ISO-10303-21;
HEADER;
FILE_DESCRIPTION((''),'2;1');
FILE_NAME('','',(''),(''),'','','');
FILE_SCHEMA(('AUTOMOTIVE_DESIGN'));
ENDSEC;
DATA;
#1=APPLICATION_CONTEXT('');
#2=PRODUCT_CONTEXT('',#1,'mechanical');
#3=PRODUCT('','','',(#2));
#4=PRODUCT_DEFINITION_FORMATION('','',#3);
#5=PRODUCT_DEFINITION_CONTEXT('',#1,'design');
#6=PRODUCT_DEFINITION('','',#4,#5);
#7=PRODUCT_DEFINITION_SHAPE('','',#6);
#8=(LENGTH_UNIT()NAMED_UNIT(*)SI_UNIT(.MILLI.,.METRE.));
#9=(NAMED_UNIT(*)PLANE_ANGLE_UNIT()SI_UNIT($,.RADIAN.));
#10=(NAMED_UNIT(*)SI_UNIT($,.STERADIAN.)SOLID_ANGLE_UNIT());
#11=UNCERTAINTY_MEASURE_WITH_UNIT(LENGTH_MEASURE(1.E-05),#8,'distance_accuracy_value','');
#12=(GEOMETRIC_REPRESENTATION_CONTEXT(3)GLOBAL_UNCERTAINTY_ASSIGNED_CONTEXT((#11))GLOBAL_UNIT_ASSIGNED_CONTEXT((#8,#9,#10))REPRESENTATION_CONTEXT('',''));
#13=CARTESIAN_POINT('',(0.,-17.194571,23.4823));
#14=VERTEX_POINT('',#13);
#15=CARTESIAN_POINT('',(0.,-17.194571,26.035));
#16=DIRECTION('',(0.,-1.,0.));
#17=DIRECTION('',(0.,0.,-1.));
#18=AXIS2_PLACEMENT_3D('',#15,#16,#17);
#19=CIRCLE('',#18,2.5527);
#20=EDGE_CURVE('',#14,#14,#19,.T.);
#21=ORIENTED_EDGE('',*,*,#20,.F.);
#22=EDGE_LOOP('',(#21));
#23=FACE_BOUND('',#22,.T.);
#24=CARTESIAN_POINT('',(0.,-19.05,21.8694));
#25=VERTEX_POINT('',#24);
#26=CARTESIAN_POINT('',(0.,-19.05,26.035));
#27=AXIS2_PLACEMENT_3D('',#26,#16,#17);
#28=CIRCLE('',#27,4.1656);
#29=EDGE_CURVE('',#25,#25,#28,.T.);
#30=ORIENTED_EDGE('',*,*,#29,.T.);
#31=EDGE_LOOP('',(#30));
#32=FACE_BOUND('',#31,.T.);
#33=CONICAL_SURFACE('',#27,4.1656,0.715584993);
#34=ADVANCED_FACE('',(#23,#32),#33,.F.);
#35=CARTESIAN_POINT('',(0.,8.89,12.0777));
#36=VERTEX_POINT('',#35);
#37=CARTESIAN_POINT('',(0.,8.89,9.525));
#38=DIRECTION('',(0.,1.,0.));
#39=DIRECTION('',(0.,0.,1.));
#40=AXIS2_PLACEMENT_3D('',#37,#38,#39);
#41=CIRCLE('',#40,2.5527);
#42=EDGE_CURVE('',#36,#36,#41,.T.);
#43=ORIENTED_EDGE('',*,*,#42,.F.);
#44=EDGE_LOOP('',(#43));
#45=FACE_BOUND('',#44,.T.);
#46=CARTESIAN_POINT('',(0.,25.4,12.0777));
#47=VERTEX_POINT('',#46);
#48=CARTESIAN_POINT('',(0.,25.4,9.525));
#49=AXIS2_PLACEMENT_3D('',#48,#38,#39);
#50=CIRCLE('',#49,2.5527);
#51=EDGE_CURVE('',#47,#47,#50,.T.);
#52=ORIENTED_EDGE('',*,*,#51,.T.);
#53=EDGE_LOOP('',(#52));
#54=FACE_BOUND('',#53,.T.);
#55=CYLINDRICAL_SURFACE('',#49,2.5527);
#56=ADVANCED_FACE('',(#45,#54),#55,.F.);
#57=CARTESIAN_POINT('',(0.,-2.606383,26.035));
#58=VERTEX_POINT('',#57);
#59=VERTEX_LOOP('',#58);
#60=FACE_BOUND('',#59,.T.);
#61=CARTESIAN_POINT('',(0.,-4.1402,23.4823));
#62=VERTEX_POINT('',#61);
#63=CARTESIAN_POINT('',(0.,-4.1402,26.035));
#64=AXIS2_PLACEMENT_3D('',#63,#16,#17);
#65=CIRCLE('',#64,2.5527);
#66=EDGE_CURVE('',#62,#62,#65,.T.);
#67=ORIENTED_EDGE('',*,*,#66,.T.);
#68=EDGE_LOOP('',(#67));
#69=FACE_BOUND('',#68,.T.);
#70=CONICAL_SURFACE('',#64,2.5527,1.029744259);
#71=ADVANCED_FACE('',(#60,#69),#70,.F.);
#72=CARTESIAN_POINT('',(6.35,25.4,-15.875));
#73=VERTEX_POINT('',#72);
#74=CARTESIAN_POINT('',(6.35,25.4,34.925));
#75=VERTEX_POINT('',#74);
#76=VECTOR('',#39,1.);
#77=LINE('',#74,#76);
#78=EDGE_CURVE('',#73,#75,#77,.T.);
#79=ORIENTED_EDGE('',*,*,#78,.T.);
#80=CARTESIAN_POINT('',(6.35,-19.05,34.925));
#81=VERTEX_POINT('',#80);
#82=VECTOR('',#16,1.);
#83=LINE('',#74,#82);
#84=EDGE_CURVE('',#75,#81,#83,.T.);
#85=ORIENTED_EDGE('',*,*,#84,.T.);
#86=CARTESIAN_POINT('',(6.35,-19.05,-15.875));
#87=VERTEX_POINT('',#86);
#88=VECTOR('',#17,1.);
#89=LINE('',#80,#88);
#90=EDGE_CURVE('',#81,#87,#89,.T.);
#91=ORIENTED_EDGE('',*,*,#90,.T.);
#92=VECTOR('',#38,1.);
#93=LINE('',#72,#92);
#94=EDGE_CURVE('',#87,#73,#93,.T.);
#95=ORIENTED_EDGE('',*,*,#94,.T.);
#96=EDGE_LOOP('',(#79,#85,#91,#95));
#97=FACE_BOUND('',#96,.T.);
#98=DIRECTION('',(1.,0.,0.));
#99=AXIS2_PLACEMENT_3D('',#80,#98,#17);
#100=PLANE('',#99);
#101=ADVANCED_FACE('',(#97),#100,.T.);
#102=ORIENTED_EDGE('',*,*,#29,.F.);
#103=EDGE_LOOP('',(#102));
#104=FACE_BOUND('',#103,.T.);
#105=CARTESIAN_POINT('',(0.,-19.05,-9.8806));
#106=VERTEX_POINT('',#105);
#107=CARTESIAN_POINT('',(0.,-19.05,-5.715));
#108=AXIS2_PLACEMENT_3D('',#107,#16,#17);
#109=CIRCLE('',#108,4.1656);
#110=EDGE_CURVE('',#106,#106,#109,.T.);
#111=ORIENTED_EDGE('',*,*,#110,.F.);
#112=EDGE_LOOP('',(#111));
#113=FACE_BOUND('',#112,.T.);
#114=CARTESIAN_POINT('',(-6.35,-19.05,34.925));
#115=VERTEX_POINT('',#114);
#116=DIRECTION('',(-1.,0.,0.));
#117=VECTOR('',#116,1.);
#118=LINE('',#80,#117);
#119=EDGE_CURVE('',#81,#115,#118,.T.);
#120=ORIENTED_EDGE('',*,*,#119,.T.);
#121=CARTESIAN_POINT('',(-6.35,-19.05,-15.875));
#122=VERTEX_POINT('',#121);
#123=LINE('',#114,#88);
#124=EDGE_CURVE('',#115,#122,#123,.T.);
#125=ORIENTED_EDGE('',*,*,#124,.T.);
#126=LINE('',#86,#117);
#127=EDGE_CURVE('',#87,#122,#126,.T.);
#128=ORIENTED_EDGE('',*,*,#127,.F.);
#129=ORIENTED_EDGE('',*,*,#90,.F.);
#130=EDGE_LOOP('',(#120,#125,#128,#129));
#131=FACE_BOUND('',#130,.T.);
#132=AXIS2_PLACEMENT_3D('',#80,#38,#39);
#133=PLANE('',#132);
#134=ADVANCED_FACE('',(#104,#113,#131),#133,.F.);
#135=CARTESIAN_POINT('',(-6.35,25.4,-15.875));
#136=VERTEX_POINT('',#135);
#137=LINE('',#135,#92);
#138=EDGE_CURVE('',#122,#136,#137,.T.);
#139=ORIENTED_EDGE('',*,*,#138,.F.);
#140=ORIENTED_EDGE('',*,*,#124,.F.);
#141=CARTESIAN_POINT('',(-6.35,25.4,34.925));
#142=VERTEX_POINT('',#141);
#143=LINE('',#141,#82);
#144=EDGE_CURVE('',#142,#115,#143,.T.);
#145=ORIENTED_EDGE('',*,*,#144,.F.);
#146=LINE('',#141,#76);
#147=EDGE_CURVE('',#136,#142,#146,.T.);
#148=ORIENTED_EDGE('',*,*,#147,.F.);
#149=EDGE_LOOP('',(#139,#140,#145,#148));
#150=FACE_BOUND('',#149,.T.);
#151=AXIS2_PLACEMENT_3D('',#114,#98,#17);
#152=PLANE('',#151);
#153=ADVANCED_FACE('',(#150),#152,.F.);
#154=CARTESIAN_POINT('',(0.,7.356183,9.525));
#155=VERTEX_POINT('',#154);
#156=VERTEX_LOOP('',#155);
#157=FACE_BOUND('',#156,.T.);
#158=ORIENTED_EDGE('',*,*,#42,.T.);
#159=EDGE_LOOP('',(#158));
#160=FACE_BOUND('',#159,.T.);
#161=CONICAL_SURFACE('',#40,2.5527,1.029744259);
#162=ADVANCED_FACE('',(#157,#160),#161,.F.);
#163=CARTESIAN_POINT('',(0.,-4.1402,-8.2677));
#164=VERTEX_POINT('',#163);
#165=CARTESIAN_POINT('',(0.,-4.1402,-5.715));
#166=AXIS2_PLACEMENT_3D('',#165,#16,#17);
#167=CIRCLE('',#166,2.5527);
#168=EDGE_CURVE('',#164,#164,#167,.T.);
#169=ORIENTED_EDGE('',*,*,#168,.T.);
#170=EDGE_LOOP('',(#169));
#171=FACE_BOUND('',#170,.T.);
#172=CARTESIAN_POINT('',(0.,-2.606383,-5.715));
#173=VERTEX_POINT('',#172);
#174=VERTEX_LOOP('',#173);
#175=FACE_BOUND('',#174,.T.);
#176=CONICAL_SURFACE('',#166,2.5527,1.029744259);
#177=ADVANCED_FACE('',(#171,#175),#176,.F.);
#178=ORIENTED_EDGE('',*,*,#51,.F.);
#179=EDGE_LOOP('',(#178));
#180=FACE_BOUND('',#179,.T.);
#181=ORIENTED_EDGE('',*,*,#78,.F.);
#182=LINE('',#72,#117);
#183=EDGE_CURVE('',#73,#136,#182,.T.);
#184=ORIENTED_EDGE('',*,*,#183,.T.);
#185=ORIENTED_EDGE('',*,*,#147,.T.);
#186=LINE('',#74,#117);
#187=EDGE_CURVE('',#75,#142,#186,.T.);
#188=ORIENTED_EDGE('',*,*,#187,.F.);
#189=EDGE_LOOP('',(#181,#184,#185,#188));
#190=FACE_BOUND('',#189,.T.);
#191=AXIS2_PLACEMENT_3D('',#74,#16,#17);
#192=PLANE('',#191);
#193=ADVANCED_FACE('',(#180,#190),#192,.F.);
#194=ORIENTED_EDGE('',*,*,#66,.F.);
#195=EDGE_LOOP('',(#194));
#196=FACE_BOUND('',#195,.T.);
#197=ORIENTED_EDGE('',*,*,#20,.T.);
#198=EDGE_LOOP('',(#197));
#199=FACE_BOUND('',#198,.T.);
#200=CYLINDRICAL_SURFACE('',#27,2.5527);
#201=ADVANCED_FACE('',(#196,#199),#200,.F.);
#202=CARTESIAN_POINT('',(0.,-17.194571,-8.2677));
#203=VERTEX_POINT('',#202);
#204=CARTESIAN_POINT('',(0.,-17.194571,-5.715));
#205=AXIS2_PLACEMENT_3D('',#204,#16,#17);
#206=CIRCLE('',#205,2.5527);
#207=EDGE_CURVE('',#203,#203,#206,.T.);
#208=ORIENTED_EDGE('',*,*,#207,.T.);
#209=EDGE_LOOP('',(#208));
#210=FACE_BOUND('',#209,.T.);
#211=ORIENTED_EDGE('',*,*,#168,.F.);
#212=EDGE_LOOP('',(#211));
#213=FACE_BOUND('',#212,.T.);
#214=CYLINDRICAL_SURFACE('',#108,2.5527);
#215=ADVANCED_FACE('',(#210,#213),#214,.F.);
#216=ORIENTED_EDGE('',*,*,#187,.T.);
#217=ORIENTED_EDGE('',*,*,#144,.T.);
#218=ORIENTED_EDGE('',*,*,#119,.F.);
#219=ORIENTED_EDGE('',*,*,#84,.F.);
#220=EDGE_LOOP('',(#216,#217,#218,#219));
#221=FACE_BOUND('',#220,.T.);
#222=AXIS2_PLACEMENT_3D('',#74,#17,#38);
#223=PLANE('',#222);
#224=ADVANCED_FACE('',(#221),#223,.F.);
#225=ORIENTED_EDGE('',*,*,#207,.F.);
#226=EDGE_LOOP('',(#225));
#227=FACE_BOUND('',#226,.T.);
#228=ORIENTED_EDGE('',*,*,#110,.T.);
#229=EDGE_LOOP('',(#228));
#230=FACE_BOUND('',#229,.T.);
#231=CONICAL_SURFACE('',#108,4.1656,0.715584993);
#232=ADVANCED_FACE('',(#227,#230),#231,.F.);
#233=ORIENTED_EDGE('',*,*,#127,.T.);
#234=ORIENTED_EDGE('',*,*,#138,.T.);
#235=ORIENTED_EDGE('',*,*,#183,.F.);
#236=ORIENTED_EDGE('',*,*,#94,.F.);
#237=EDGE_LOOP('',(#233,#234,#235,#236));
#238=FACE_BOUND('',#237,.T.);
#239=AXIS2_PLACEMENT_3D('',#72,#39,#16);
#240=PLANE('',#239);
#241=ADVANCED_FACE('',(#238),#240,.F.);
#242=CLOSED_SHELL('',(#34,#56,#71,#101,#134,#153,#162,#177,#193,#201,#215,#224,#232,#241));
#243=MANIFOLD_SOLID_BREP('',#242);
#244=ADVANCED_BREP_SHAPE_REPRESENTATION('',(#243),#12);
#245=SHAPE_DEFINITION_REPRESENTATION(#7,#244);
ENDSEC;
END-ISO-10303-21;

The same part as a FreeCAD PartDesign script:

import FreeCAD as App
import Part
import Sketcher
from FreeCAD import Vector
Q = App.Units.Quantity


def add_polygon(sketch, points):
    """Adds a closed chain of lines whose ends are joined by coincident constraints."""
    first, n = sketch.GeometryCount, len(points)
    for a, b in zip(points, points[1:] + points[:1]):
        sketch.addGeometry(Part.LineSegment(App.Vector(*a, 0), App.Vector(*b, 0)), False)
    for i in range(n):
        sketch.addConstraint(Sketcher.Constraint("Coincident", first + i, 2, first + (i + 1) % n, 1))

doc = App.newDocument("Part")
body = doc.addObject("PartDesign::Body", "Body")

sketch1 = doc.addObject("Sketcher::SketchObject", "Sketch")
body.addObject(sketch1)
sketch1.AttachmentSupport = (doc.YZ_Plane, [""])
sketch1.MapMode = "FlatFace"
add_polygon(sketch1, [(25, 35), (-19, 35), (-19, -16), (25, -16)])
sketch1.addConstraint([
    Sketcher.Constraint("Horizontal", 0),
    Sketcher.Constraint("Vertical", 1),
    Sketcher.Constraint("Horizontal", 2),
    Sketcher.Constraint("Vertical", 3),
    Sketcher.Constraint("DistanceY", 1, 2, 1, 1, Q("2 in")),
    Sketcher.Constraint("DistanceX", -1, 1, 2, 2, Q("1 in")),
    Sketcher.Constraint("DistanceX", 0, 2, 0, 1, Q("1.75 in")),
    Sketcher.Constraint("DistanceY", -1, 1, 0, 2, Q("1.375 in")),
])
pad1 = doc.addObject("PartDesign::Pad", "Pad")
body.addObject(pad1)
pad1.Profile = sketch1
pad1.Length = Q("0.5 in")
pad1.Midplane = True

sketch2 = doc.addObject("Sketcher::SketchObject", "Sketch001")
body.addObject(sketch2)
sketch2.AttachmentSupport = (doc.XZ_Plane, [""])
sketch2.MapMode = "FlatFace"
sketch2.AttachmentOffset = App.Placement(Vector(0, 0, 0.75 * 25.4), App.Rotation())
sketch2.addGeometry([
    Part.Circle(Vector(0, 26, 0), Vector(0, 0, 1), 2.6),
    Part.Circle(Vector(0, -5.7, 0), Vector(0, 0, 1), 2.6),
], False)
sketch2.addConstraint([
    Sketcher.Constraint("Equal", 0, 1),
    Sketcher.Constraint("PointOnObject", 0, 3, -2),
    Sketcher.Constraint("PointOnObject", 1, 3, -2),
    Sketcher.Constraint("Diameter", 0, Q("0.201 in")),
    Sketcher.Constraint("DistanceY", 1, 3, 0, 3, Q("1.25 in")),
    Sketcher.Constraint("DistanceY", -1, 1, 0, 3, Q("1.025 in")),
])
doc.recompute()
hole = doc.addObject("PartDesign::Hole", "Hole")
body.addObject(hole)
hole.Profile = sketch2
hole.ThreadType = "None"
hole.Diameter = Q("0.201 in")
hole.DepthType = "Dimension"
hole.Depth = Q("0.587 in")
hole.DrillPoint = "Angled"
hole.DrillPointAngle = 118
hole.HoleCutType = "Countersink"
hole.HoleCutDiameter = Q("0.328 in")
hole.HoleCutCountersinkAngle = 82

sketch3 = doc.addObject("Sketcher::SketchObject", "Sketch002")
body.addObject(sketch3)
sketch3.AttachmentSupport = (doc.XZ_Plane, [""])
sketch3.MapMode = "FlatFace"
sketch3.AttachmentOffset = App.Placement(Vector(0, 0, -1 * 25.4), App.Rotation())
sketch3.addGeometry(Part.Circle(Vector(0, 9.5, 0), Vector(0, 0, 1), 2.6), False)
sketch3.addConstraint([
    Sketcher.Constraint("PointOnObject", 0, 3, -2),
    Sketcher.Constraint("Diameter", 0, Q("0.201 in")),
    Sketcher.Constraint("DistanceY", -1, 1, 0, 3, Q("0.375 in")),
])
doc.recompute()
hole2 = doc.addObject("PartDesign::Hole", "Hole001")
body.addObject(hole2)
hole2.Profile = sketch3
hole2.ThreadType = "None"
hole2.Diameter = Q("0.201 in")
hole2.DepthType = "Dimension"
hole2.Depth = Q("0.65 in")
hole2.DrillPoint = "Angled"
hole2.DrillPointAngle = 118
hole2.Reversed = True

doc.recompute()
